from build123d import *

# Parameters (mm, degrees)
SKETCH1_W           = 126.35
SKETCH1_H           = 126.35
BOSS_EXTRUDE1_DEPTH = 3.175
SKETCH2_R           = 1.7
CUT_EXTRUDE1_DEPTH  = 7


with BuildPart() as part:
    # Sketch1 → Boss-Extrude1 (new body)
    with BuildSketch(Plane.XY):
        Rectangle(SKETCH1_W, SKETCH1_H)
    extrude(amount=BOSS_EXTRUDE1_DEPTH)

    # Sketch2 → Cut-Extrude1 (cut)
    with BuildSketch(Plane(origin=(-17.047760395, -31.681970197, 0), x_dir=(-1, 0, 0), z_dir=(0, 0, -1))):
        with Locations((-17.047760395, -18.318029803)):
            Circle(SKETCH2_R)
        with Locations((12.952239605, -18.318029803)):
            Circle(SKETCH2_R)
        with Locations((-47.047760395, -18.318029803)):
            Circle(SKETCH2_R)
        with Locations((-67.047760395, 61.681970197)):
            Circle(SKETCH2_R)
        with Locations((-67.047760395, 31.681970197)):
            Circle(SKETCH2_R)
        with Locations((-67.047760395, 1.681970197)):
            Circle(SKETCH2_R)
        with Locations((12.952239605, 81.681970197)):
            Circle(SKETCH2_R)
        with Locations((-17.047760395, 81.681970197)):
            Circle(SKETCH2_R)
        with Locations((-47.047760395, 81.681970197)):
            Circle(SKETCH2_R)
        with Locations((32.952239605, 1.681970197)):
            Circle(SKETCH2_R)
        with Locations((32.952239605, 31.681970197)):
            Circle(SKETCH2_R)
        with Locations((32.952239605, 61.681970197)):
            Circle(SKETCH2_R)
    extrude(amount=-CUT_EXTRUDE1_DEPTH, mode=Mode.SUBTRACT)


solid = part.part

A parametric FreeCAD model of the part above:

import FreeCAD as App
import Part
import Sketcher

V = App.Vector


def add_polygon(sketch, points):
    """Adds a closed chain of lines whose ends are joined by coincident constraints."""
    first, n = sketch.GeometryCount, len(points)
    for a, b in zip(points, points[1:] + points[:1]):
        sketch.addGeometry(Part.LineSegment(App.Vector(*a, 0), App.Vector(*b, 0)), False)
    for i in range(n):
        sketch.addConstraint(Sketcher.Constraint("Coincident", first + i, 2, first + (i + 1) % n, 1))

doc = App.newDocument("Part")
body = doc.addObject("PartDesign::Body", "Body")

sketch1 = doc.addObject("Sketcher::SketchObject", "Sketch")
body.addObject(sketch1)
sketch1.AttachmentSupport = (doc.XY_Plane, [""])
sketch1.MapMode = "FlatFace"
add_polygon(sketch1, [(-63.175, 63.175), (-63.175, -63.175), (63.175, -63.175), (63.175, 63.175)])
sketch1.addConstraint([
    Sketcher.Constraint("Vertical", 0),
    Sketcher.Constraint("Horizontal", 1),
    Sketcher.Constraint("Vertical", 2),
    Sketcher.Constraint("Horizontal", 3),
    Sketcher.Constraint("Symmetric", 0, 2, 2, 2, -1, 1),
    Sketcher.Constraint("Equal", 3, 0),
    Sketcher.Constraint("DistanceX", 1, 1, 1, 2, 126.35),
])
pad1 = doc.addObject("PartDesign::Pad", "Pad")
body.addObject(pad1)
pad1.Profile = sketch1
pad1.Length = 3.175

sketch2 = doc.addObject("Sketcher::SketchObject", "Sketch001")
body.addObject(sketch2)
sketch2.AttachmentSupport = (doc.XY_Plane, [""])
sketch2.MapMode = "FlatFace"
sketch2.addGeometry([
    Part.Circle(V(0, -50, 0), V(0, 0, 1), 1.7),
    Part.Circle(V(-30, -50, 0), V(0, 0, 1), 1.7),
    Part.Circle(V(30, -50, 0), V(0, 0, 1), 1.7),
    Part.Circle(V(50, 30, 0), V(0, 0, 1), 1.7),
    Part.Circle(V(50, 0, 0), V(0, 0, 1), 1.7),
    Part.Circle(V(50, -30, 0), V(0, 0, 1), 1.7),
    Part.Circle(V(-30, 50, 0), V(0, 0, 1), 1.7),
    Part.Circle(V(0, 50, 0), V(0, 0, 1), 1.7),
    Part.Circle(V(30, 50, 0), V(0, 0, 1), 1.7),
    Part.Circle(V(-50, -30, 0), V(0, 0, 1), 1.7),
    Part.Circle(V(-50, 0, 0), V(0, 0, 1), 1.7),
    Part.Circle(V(-50, 30, 0), V(0, 0, 1), 1.7),
], False)
sketch2.addConstraint([
    Sketcher.Constraint("Equal", 0, 1),
    Sketcher.Constraint("Equal", 1, 2),
    Sketcher.Constraint("Equal", 2, 3),
    Sketcher.Constraint("Equal", 3, 4),
    Sketcher.Constraint("Equal", 4, 5),
    Sketcher.Constraint("Equal", 5, 6),
    Sketcher.Constraint("Equal", 6, 7),
    Sketcher.Constraint("Equal", 7, 8),
    Sketcher.Constraint("Equal", 8, 9),
    Sketcher.Constraint("Equal", 9, 10),
    Sketcher.Constraint("Equal", 10, 11),
    Sketcher.Constraint("Symmetric", 2, 3, 6, 3, -1, 1),
    Sketcher.Constraint("Symmetric", 0, 3, 7, 3, -1, 1),
    Sketcher.Constraint("Symmetric", 1, 3, 8, 3, -1, 1),
    Sketcher.Constraint("Symmetric", 3, 3, 9, 3, -1, 1),
    Sketcher.Constraint("Symmetric", 4, 3, 10, 3, -1, 1),
    Sketcher.Constraint("Symmetric", 5, 3, 11, 3, -1, 1),
    Sketcher.Constraint("Symmetric", 1, 3, 2, 3, -2),
    Sketcher.Constraint("Symmetric", 5, 3, 9, 3, -2),
    Sketcher.Constraint("PointOnObject", 0, 3, -2),
    Sketcher.Constraint("PointOnObject", 4, 3, -1),
    Sketcher.Constraint("Horizontal", 0, 3, 1, 3),
    Sketcher.Constraint("Vertical", 3, 3, 4, 3),
    Sketcher.Constraint("Diameter", 0, 3.4),
    Sketcher.Constraint("DistanceY", 0, 3, -1, 1, 50.0),
    Sketcher.Constraint("DistanceX", 1, 3, -1, 1, 30.0),
    Sketcher.Constraint("DistanceX", -1, 1, 3, 3, 50.0),
    Sketcher.Constraint("DistanceY", -1, 1, 3, 3, 30.0),
])
pocket1 = doc.addObject("PartDesign::Pocket", "Pocket")
body.addObject(pocket1)
pocket1.Profile = sketch2
pocket1.Length = 7
pocket1.Reversed = True

doc.recompute()
